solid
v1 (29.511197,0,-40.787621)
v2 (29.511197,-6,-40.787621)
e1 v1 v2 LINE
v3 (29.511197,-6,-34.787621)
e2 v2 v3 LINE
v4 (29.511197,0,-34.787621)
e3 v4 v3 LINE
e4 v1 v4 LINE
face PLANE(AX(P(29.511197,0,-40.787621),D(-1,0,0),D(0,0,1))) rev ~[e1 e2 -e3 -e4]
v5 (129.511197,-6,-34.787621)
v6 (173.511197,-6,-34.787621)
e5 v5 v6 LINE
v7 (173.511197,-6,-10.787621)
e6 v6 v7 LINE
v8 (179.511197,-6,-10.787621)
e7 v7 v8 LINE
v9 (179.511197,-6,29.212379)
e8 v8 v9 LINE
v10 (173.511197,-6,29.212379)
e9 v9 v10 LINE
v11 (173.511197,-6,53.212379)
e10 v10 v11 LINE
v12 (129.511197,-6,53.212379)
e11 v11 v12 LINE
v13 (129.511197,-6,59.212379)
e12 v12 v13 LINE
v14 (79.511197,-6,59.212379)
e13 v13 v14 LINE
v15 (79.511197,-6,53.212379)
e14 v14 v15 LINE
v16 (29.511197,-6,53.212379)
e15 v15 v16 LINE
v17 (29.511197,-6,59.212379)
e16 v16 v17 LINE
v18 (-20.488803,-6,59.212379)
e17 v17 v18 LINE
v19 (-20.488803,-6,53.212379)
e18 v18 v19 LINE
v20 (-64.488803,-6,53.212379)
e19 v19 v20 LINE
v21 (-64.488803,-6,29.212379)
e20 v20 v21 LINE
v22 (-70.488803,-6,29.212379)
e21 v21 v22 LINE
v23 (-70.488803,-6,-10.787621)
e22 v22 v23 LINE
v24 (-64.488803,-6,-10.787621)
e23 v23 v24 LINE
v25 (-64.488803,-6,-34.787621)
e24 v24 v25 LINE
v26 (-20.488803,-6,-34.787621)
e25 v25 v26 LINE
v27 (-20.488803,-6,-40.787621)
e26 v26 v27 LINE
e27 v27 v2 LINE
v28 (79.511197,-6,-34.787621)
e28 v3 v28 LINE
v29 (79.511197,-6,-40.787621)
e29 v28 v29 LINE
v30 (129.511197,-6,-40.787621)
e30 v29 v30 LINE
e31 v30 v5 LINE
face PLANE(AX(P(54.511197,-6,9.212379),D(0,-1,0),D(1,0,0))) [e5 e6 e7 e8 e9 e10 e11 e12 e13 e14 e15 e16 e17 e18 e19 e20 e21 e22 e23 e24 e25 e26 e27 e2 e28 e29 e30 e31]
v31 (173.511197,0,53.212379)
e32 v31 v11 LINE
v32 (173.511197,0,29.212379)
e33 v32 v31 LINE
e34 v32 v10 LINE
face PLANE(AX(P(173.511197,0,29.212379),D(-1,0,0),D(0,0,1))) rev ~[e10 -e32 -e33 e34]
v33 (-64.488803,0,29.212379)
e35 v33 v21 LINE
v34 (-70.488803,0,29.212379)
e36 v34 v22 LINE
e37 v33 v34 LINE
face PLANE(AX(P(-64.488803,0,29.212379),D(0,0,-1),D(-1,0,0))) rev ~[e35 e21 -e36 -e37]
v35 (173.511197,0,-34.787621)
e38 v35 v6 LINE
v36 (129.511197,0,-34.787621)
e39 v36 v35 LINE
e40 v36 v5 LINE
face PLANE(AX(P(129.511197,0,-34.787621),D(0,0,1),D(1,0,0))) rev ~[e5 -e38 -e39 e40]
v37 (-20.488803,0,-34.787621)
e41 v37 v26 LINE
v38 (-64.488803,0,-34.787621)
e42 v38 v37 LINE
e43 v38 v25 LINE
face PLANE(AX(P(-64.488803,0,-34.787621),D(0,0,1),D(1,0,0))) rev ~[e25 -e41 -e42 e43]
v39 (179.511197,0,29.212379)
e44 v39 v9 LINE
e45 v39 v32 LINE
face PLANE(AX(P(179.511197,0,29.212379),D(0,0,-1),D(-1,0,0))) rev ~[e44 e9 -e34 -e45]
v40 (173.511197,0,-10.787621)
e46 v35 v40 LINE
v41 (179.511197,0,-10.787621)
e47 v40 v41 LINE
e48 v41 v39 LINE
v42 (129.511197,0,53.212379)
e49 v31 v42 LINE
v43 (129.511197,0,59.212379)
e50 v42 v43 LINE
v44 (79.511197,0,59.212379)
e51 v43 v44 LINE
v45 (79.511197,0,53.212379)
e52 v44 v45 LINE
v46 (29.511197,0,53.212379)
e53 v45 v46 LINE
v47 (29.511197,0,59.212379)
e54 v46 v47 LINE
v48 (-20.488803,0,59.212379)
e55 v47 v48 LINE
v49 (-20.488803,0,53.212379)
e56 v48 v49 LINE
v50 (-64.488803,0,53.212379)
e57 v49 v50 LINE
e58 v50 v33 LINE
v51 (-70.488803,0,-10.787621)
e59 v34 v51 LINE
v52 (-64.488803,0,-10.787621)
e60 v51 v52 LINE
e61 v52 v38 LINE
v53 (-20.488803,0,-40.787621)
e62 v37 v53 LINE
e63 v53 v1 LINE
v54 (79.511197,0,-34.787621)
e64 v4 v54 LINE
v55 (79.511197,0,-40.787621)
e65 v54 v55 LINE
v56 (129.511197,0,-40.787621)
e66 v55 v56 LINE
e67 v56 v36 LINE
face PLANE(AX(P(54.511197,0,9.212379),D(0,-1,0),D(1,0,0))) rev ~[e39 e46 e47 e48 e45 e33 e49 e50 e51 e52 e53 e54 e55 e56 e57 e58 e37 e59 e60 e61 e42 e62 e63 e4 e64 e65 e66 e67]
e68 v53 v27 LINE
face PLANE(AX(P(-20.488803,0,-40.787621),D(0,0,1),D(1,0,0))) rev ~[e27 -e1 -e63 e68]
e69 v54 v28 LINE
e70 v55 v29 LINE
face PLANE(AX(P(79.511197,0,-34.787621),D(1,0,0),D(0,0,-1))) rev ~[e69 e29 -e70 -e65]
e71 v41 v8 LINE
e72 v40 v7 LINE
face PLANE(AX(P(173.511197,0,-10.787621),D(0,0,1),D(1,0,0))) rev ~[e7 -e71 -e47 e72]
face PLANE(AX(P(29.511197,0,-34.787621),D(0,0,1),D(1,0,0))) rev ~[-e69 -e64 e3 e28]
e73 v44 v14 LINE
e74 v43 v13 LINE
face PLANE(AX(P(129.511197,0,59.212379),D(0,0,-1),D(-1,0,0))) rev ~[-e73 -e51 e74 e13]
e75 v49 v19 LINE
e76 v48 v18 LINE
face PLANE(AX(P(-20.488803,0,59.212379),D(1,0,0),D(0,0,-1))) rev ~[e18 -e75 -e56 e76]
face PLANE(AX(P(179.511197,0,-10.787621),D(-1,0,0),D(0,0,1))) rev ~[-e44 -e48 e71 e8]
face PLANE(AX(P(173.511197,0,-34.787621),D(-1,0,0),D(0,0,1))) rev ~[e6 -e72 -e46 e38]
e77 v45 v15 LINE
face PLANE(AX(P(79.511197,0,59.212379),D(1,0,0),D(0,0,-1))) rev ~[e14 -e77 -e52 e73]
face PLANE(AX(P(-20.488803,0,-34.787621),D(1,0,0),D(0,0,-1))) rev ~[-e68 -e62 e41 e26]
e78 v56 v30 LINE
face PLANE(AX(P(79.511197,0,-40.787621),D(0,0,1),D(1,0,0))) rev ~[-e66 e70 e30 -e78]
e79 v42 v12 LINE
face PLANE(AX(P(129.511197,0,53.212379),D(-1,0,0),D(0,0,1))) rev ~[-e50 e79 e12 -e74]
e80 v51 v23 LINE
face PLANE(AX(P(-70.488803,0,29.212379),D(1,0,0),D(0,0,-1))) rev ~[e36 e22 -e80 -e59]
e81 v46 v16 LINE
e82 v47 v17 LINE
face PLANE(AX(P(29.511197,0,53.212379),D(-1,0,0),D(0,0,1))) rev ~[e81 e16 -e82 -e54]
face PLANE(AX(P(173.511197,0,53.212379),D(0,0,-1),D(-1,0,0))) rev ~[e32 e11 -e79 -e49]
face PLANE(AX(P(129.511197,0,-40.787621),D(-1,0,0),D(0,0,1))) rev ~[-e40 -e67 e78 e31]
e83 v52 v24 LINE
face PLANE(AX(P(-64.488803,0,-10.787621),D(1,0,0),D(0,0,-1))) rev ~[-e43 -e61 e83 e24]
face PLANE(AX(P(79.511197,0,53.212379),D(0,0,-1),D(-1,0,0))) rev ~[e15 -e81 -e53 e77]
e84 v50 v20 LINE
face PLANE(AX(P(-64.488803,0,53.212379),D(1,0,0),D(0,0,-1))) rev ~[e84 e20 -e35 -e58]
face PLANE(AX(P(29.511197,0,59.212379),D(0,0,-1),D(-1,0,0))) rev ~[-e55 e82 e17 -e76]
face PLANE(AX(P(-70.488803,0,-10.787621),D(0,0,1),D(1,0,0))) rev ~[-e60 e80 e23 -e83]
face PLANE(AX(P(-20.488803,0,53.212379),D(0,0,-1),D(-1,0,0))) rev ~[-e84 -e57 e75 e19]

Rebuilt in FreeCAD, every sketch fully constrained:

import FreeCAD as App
import Part
import Sketcher
Q = App.Units.Quantity


def add_polygon(sketch, points):
    """Adds a closed chain of lines whose ends are joined by coincident constraints."""
    first, n = sketch.GeometryCount, len(points)
    for a, b in zip(points, points[1:] + points[:1]):
        sketch.addGeometry(Part.LineSegment(App.Vector(*a, 0), App.Vector(*b, 0)), False)
    for i in range(n):
        sketch.addConstraint(Sketcher.Constraint("Coincident", first + i, 2, first + (i + 1) % n, 1))

doc = App.newDocument("Part")
body = doc.addObject("PartDesign::Body", "Body")

sketch1 = body.newObject("Sketcher::SketchObject", "Sketch")
sketch1.AttachmentSupport = (doc.getObject("XZ_Plane"), [""])
sketch1.MapMode = "FlatFace"
add_polygon(sketch1, [(-64, -11), (-64, -35), (-20, -35), (-20, -41), (30, -41), (30, -35), (80, -35), (80, -41), (130, -41), (130, -35), (174, -35), (174, -11), (180, -11), (180, 29), (174, 29), (174, 53), (130, 53), (130, 59), (80, 59), (80, 53), (30, 53), (30, 59), (-20, 59), (-20, 53), (-64, 53), (-64, 29), (-70, 29), (-70, -11)])
sketch1.addConstraint([
    Sketcher.Constraint("Vertical", 0),
    Sketcher.Constraint("Horizontal", 1),
    Sketcher.Constraint("Vertical", 2),
    Sketcher.Constraint("Horizontal", 3),
    Sketcher.Constraint("Vertical", 4),
    Sketcher.Constraint("Horizontal", 5),
    Sketcher.Constraint("Vertical", 6),
    Sketcher.Constraint("Horizontal", 7),
    Sketcher.Constraint("Vertical", 8),
    Sketcher.Constraint("Horizontal", 9),
    Sketcher.Constraint("Vertical", 10),
    Sketcher.Constraint("Horizontal", 11),
    Sketcher.Constraint("Vertical", 12),
    Sketcher.Constraint("Horizontal", 13),
    Sketcher.Constraint("Vertical", 14),
    Sketcher.Constraint("Horizontal", 15),
    Sketcher.Constraint("Vertical", 16),
    Sketcher.Constraint("Horizontal", 17),
    Sketcher.Constraint("Vertical", 18),
    Sketcher.Constraint("Horizontal", 19),
    Sketcher.Constraint("Vertical", 20),
    Sketcher.Constraint("Horizontal", 21),
    Sketcher.Constraint("Vertical", 22),
    Sketcher.Constraint("Horizontal", 23),
    Sketcher.Constraint("Vertical", 24),
    Sketcher.Constraint("Horizontal", 25),
    Sketcher.Constraint("Vertical", 26),
    Sketcher.Constraint("Horizontal", 27),
    Sketcher.Constraint("Horizontal", 1, 2, 4, 2),
    Sketcher.Constraint("Horizontal", 3, 2, 6, 2),
    Sketcher.Constraint("Horizontal", 5, 2, 8, 2),
    Sketcher.Constraint("Horizontal", 15, 2, 18, 2),
    Sketcher.Constraint("Horizontal", 17, 2, 20, 2),
    Sketcher.Constraint("Horizontal", 19, 2, 22, 2),
    Sketcher.Constraint("Horizontal", 13, 2, 24, 2),
    Sketcher.Constraint("Horizontal", 11, 2, 26, 2),
    Sketcher.Constraint("Vertical", 10, 2, 13, 2),
    Sketcher.Constraint("Vertical", 8, 2, 15, 2),
    Sketcher.Constraint("Vertical", 6, 2, 17, 2),
    Sketcher.Constraint("Vertical", 4, 2, 19, 2),
    Sketcher.Constraint("Vertical", 2, 2, 21, 2),
    Sketcher.Constraint("Vertical", 0, 2, 23, 2),
    Sketcher.Constraint("Equal", 3, 5),
    Sketcher.Constraint("Equal", 5, 7),
    Sketcher.Constraint("Equal", 1, 9),
    Sketcher.Constraint("Equal", 13, 25),
    Sketcher.Constraint("Equal", 27, 2),
    Sketcher.Constraint("Equal", 10, 14),
    Sketcher.Constraint("Equal", 8, 16),
    Sketcher.Constraint("DistanceX", 1, 1, 1, 2, Q("44 mm")),
    Sketcher.Constraint("DistanceX", 3, 1, 3, 2, Q("50 mm")),
    Sketcher.Constraint("DistanceX", 11, 1, 11, 2, Q("6 mm")),
    Sketcher.Constraint("DistanceY", 0, 2, 0, 1, Q("24 mm")),
    Sketcher.Constraint("DistanceY", 12, 1, 12, 2, Q("40 mm")),
    Sketcher.Constraint("DistanceY", 0, 2, -1, 1, Q("34.787621 mm")),
    Sketcher.Constraint("DistanceX", 0, 2, -1, 1, Q("64.488803 mm")),
])
pad1 = body.newObject("PartDesign::Pad", "Pad")
pad1.Profile = sketch1
pad1.Length = 6

doc.recompute()
